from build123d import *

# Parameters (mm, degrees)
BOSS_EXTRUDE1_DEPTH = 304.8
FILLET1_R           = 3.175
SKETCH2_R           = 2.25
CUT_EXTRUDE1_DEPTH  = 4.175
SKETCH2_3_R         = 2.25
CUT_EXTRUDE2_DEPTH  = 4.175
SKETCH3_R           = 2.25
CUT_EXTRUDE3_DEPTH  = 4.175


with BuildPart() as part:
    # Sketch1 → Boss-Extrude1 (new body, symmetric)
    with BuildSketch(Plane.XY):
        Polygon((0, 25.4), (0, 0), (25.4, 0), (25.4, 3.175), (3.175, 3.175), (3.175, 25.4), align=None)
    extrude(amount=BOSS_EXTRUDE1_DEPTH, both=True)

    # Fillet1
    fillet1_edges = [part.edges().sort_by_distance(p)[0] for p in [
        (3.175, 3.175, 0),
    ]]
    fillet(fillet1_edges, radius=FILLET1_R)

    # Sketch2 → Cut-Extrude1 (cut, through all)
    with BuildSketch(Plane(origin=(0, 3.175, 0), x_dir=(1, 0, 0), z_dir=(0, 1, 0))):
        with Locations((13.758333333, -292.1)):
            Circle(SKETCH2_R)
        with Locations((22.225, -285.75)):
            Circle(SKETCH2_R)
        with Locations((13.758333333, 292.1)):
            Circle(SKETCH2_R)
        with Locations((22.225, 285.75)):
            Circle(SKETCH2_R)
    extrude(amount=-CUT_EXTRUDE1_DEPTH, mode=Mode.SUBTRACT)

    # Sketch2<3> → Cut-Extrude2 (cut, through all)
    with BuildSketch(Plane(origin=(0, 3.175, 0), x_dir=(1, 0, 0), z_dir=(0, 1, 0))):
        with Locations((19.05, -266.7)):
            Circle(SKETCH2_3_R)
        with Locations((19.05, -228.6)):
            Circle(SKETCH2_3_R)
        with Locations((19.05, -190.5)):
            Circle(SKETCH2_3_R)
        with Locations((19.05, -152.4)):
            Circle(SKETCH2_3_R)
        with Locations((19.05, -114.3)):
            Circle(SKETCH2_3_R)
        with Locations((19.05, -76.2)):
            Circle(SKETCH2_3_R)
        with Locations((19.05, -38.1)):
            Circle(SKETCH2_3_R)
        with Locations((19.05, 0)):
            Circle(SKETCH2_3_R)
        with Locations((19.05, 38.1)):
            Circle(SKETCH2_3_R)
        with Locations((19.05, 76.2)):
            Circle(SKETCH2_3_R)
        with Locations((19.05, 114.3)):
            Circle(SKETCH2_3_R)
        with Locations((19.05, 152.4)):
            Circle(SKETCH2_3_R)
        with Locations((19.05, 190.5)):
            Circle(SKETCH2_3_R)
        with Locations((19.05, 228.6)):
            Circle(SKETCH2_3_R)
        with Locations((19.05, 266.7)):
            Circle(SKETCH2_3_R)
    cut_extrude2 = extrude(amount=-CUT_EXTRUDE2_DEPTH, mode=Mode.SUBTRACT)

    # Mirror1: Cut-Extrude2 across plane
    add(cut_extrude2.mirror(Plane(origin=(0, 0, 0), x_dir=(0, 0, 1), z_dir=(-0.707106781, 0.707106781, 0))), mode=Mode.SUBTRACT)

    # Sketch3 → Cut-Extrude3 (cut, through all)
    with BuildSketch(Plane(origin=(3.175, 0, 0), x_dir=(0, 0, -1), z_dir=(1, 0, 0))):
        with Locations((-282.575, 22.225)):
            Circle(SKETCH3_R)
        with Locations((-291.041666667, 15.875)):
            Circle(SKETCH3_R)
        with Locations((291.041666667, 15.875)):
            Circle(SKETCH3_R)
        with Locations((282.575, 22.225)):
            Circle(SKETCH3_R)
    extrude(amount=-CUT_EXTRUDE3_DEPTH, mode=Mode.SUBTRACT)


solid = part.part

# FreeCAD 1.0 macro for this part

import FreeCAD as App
import Part
import Sketcher

V = App.Vector
Q = App.Units.Quantity


def edges_at(feature, points):
    """Names of the edges that pass closest to the given points."""
    edges = feature.Shape.Edges
    near = lambda p: min(range(len(edges)), key=lambda i: edges[i].distToShape(Part.Vertex(*p))[0])
    return sorted({f"Edge{near(p) + 1}" for p in points})


def add_polygon(sketch, points):
    """Adds a closed chain of lines whose ends are joined by coincident constraints."""
    first, n = sketch.GeometryCount, len(points)
    for a, b in zip(points, points[1:] + points[:1]):
        sketch.addGeometry(Part.LineSegment(App.Vector(*a, 0), App.Vector(*b, 0)), False)
    for i in range(n):
        sketch.addConstraint(Sketcher.Constraint("Coincident", first + i, 2, first + (i + 1) % n, 1))

doc = App.newDocument("Part")
params = doc.addObject("Spreadsheet::Sheet", "Params")
for row, (alias, value) in enumerate([
    ("sketch1_width", "1 in"),
    ("sketch1_width2", "0.875 in"),
    ("pad1_length", "24 in"),
    ("fillet_radius", "0.125 in"),
], start=1):
    params.set(f"A{row}", alias)
    params.set(f"B{row}", "=" + value)
    params.setAlias(f"B{row}", alias)

body = doc.addObject("PartDesign::Body", "Body")

# Sketch on XY plane
sketch1 = doc.addObject("Sketcher::SketchObject", "Sketch")
body.addObject(sketch1)
sketch1.AttachmentSupport = (doc.XY_Plane, [""])
sketch1.MapMode = "FlatFace"
add_polygon(sketch1, [(0, 25.4), (0, 0), (25.4, 0), (25.4, 3.2), (3.2, 3.2), (3.2, 25.4)])  # lines 0-5
sketch1.addConstraint(Sketcher.Constraint("Vertical", 0))
sketch1.addConstraint(Sketcher.Constraint("Horizontal", 1))
sketch1.addConstraint(Sketcher.Constraint("Vertical", 2))
sketch1.addConstraint(Sketcher.Constraint("Horizontal", 3))
sketch1.addConstraint(Sketcher.Constraint("Vertical", 4))
sketch1.addConstraint(Sketcher.Constraint("Horizontal", 5))
sketch1.addConstraint(Sketcher.Constraint("Coincident", 0, 2, -1, 1))
sketch1.addConstraint(Sketcher.Constraint("Equal", 1, 0))
sketch1.addConstraint(Sketcher.Constraint("Equal", 5, 2))
sketch1.addConstraint(Sketcher.Constraint("DistanceX", 1, 1, 1, 2, Q("1 in")))
sketch1.addConstraint(Sketcher.Constraint("DistanceX", 3, 2, 3, 1, Q("0.875 in")))
sketch1.setExpression("Constraints[15]", "Params.sketch1_width")
sketch1.setExpression("Constraints[16]", "Params.sketch1_width2")
pad1 = doc.addObject("PartDesign::Pad", "Pad")
body.addObject(pad1)
pad1.Profile = sketch1
pad1.setExpression("Length", "Params.pad1_length")
pad1.Midplane = True
doc.recompute()

fillet = doc.addObject("PartDesign::Fillet", "Fillet")
body.addObject(fillet)
fillet.Base = (pad1, edges_at(pad1, [(3.175, 3.175, 0)]))
fillet.setExpression("Radius", "Params.fillet_radius")

# Sketch on XZ plane
sketch2 = doc.addObject("Sketcher::SketchObject", "Sketch001")
body.addObject(sketch2)
sketch2.AttachmentSupport = (doc.XZ_Plane, [""])
sketch2.MapMode = "FlatFace"
sketch2.AttachmentOffset = App.Placement(V(0, 0, -0.125 * 25.4), App.Rotation())
sketch2.addGeometry(Part.Circle(V(13.8, 292.1, 0), V(0, 0, 1), 2.2), False)
sketch2.addGeometry(Part.Circle(V(22.2, 285.8, 0), V(0, 0, 1), 2.2), False)
sketch2.addGeometry(Part.Circle(V(13.8, -292.1, 0), V(0, 0, 1), 2.2), False)
sketch2.addGeometry(Part.Circle(V(22.2, -285.8, 0), V(0, 0, 1), 2.2), False)
sketch2.addConstraint(Sketcher.Constraint("Equal", 0, 1))
sketch2.addConstraint(Sketcher.Constraint("Equal", 1, 2))
sketch2.addConstraint(Sketcher.Constraint("Equal", 2, 3))
sketch2.addConstraint(Sketcher.Constraint("Symmetric", 0, 3, 2, 3, -1))
sketch2.addConstraint(Sketcher.Constraint("Symmetric", 1, 3, 3, 3, -1))
sketch2.addConstraint(Sketcher.Constraint("DistanceY", 2, 3, 0, 3, Q("23 in")))
sketch2.addConstraint(Sketcher.Constraint("DistanceY", 3, 3, 1, 3, Q("22.5 in")))
sketch2.addConstraint(Sketcher.Constraint("Diameter", 0, 4.5))
sketch2.addConstraint(Sketcher.Constraint("DistanceX", -1, 1, 1, 3, Q("0.875 in")))
sketch2.addConstraint(Sketcher.Constraint("DistanceX", -1, 1, 0, 3, 13.758333))
pocket1 = doc.addObject("PartDesign::Pocket", "Pocket")
body.addObject(pocket1)
pocket1.Profile = sketch2
pocket1.Type = "ThroughAll"
pocket1.Reversed = True

# Sketch on XZ plane
sketch3 = doc.addObject("Sketcher::SketchObject", "Sketch002")
body.addObject(sketch3)
sketch3.AttachmentSupport = (doc.XZ_Plane, [""])
sketch3.MapMode = "FlatFace"
sketch3.AttachmentOffset = App.Placement(V(0, 0, -0.125 * 25.4), App.Rotation())
sketch3.addGeometry(Part.Circle(V(19.1, 266.7, 0), V(0, 0, 1), 2.2), False)
sketch3.addGeometry(Part.Circle(V(19.1, 228.6, 0), V(0, 0, 1), 2.2), False)
sketch3.addGeometry(Part.Circle(V(19.1, 190.5, 0), V(0, 0, 1), 2.2), False)
sketch3.addGeometry(Part.Circle(V(19.1, 152.4, 0), V(0, 0, 1), 2.2), False)
sketch3.addGeometry(Part.Circle(V(19.1, 114.3, 0), V(0, 0, 1), 2.2), False)
sketch3.addGeometry(Part.Circle(V(19.1, 76.2, 0), V(0, 0, 1), 2.2), False)
sketch3.addGeometry(Part.Circle(V(19.1, 38.1, 0), V(0, 0, 1), 2.2), False)
sketch3.addGeometry(Part.Circle(V(19.1, 0, 0), V(0, 0, 1), 2.2), False)
sketch3.addGeometry(Part.Circle(V(19.1, -38.1, 0), V(0, 0, 1), 2.2), False)
sketch3.addGeometry(Part.Circle(V(19.1, -76.2, 0), V(0, 0, 1), 2.2), False)
sketch3.addGeometry(Part.Circle(V(19.1, -114.3, 0), V(0, 0, 1), 2.2), False)
sketch3.addGeometry(Part.Circle(V(19.1, -152.4, 0), V(0, 0, 1), 2.2), False)
sketch3.addGeometry(Part.Circle(V(19.1, -190.5, 0), V(0, 0, 1), 2.2), False)
sketch3.addGeometry(Part.Circle(V(19.1, -228.6, 0), V(0, 0, 1), 2.2), False)
sketch3.addGeometry(Part.Circle(V(19.1, -266.7, 0), V(0, 0, 1), 2.2), False)
sketch3.addConstraint(Sketcher.Constraint("Equal", 0, 1))
sketch3.addConstraint(Sketcher.Constraint("Equal", 1, 2))
sketch3.addConstraint(Sketcher.Constraint("Equal", 2, 3))
sketch3.addConstraint(Sketcher.Constraint("Equal", 3, 4))
sketch3.addConstraint(Sketcher.Constraint("Equal", 4, 5))
sketch3.addConstraint(Sketcher.Constraint("Equal", 5, 6))
sketch3.addConstraint(Sketcher.Constraint("Equal", 6, 7))
sketch3.addConstraint(Sketcher.Constraint("Equal", 7, 8))
sketch3.addConstraint(Sketcher.Constraint("Equal", 8, 9))
sketch3.addConstraint(Sketcher.Constraint("Equal", 9, 10))
sketch3.addConstraint(Sketcher.Constraint("Equal", 10, 11))
sketch3.addConstraint(Sketcher.Constraint("Equal", 11, 12))
sketch3.addConstraint(Sketcher.Constraint("Equal", 12, 13))
sketch3.addConstraint(Sketcher.Constraint("Equal", 13, 14))
sketch3.addConstraint(Sketcher.Constraint("Symmetric", 6, 3, 8, 3, -1))
sketch3.addConstraint(Sketcher.Constraint("Symmetric", 5, 3, 9, 3, -1))
sketch3.addConstraint(Sketcher.Constraint("Symmetric", 4, 3, 10, 3, -1))
sketch3.addConstraint(Sketcher.Constraint("Symmetric", 3, 3, 11, 3, -1))
sketch3.addConstraint(Sketcher.Constraint("Symmetric", 2, 3, 12, 3, -1))
sketch3.addConstraint(Sketcher.Constraint("Symmetric", 1, 3, 13, 3, -1))
sketch3.addConstraint(Sketcher.Constraint("Symmetric", 0, 3, 14, 3, -1))
sketch3.addConstraint(Sketcher.Constraint("PointOnObject", 7, 3, -1))
sketch3.addConstraint(Sketcher.Constraint("Vertical", 0, 3, 1, 3))
sketch3.addConstraint(Sketcher.Constraint("Vertical", 1, 3, 2, 3))
sketch3.addConstraint(Sketcher.Constraint("Vertical", 2, 3, 3, 3))
sketch3.addConstraint(Sketcher.Constraint("Vertical", 3, 3, 4, 3))
sketch3.addConstraint(Sketcher.Constraint("Vertical", 4, 3, 5, 3))
sketch3.addConstraint(Sketcher.Constraint("Vertical", 5, 3, 6, 3))
sketch3.addConstraint(Sketcher.Constraint("Vertical", 6, 3, 7, 3))
sketch3.addConstraint(Sketcher.Constraint("DistanceY", -1, 1, 1, 3, Q("9 in")))
sketch3.addConstraint(Sketcher.Constraint("DistanceY", -1, 1, 3, 3, Q("6 in")))
sketch3.addConstraint(Sketcher.Constraint("DistanceY", -1, 1, 5, 3, Q("3 in")))
sketch3.addConstraint(Sketcher.Constraint("DistanceY", 2, 3, 0, 3, Q("3 in")))
sketch3.addConstraint(Sketcher.Constraint("DistanceY", 4, 3, 2, 3, Q("3 in")))
sketch3.addConstraint(Sketcher.Constraint("DistanceY", 6, 3, 4, 3, Q("3 in")))
sketch3.addConstraint(Sketcher.Constraint("DistanceY", 8, 3, 6, 3, Q("3 in")))
sketch3.addConstraint(Sketcher.Constraint("Diameter", 0, 4.5))
sketch3.addConstraint(Sketcher.Constraint("DistanceX", -1, 1, 0, 3, Q("0.75 in")))
pocket2 = doc.addObject("PartDesign::Pocket", "Pocket001")
body.addObject(pocket2)
pocket2.Profile = sketch3
pocket2.Type = "ThroughAll"
pocket2.Reversed = True
doc.recompute()

datumplane = doc.addObject("PartDesign::Plane", "DatumPlane")
body.addObject(datumplane)
datumplane.Placement = App.Placement(V(0, 0, 0), App.Rotation(V(0.707106781, 0.707106781, 0), V(0, 0, -1), V(-0.707106781, 0.707106781, 0), "ZXY"))
mirrored = doc.addObject("PartDesign::Mirrored", "Mirrored")
body.addObject(mirrored)
mirrored.Originals = [pocket2]
mirrored.MirrorPlane = (datumplane, [""])
body.Tip = mirrored

# Sketch on YZ plane
sketch4 = doc.addObject("Sketcher::SketchObject", "Sketch003")
body.addObject(sketch4)
sketch4.AttachmentSupport = (doc.YZ_Plane, [""])
sketch4.MapMode = "FlatFace"
sketch4.AttachmentOffset = App.Placement(V(0, 0, 0.125 * 25.4), App.Rotation())
sketch4.addGeometry(Part.Circle(V(22.2, 282.6, 0), V(0, 0, 1), 2.2), False)
sketch4.addGeometry(Part.Circle(V(15.9, 291, 0), V(0, 0, 1), 2.2), False)
sketch4.addGeometry(Part.Circle(V(15.9, -291, 0), V(0, 0, 1), 2.2), False)
sketch4.addGeometry(Part.Circle(V(22.2, -282.6, 0), V(0, 0, 1), 2.2), False)
sketch4.addConstraint(Sketcher.Constraint("Equal", 0, 1))
sketch4.addConstraint(Sketcher.Constraint("Equal", 1, 2))
sketch4.addConstraint(Sketcher.Constraint("Equal", 2, 3))
sketch4.addConstraint(Sketcher.Constraint("Symmetric", 1, 3, 2, 3, -1))
sketch4.addConstraint(Sketcher.Constraint("Symmetric", 0, 3, 3, 3, -1))
sketch4.addConstraint(Sketcher.Constraint("Diameter", 0, 4.5))
sketch4.addConstraint(Sketcher.Constraint("DistanceX", 1, 3, 0, 3, Q("0.25 in")))
sketch4.addConstraint(Sketcher.Constraint("DistanceY", 3, 3, 0, 3, Q("22.25 in")))
sketch4.addConstraint(Sketcher.Constraint("DistanceX", -1, 1, 0, 3, Q("0.875 in")))
sketch4.addConstraint(Sketcher.Constraint("DistanceY", -1, 1, 1, 3, 291.041667))
pocket3 = doc.addObject("PartDesign::Pocket", "Pocket002")
body.addObject(pocket3)
pocket3.Profile = sketch4
pocket3.Type = "ThroughAll"

doc.recompute()
